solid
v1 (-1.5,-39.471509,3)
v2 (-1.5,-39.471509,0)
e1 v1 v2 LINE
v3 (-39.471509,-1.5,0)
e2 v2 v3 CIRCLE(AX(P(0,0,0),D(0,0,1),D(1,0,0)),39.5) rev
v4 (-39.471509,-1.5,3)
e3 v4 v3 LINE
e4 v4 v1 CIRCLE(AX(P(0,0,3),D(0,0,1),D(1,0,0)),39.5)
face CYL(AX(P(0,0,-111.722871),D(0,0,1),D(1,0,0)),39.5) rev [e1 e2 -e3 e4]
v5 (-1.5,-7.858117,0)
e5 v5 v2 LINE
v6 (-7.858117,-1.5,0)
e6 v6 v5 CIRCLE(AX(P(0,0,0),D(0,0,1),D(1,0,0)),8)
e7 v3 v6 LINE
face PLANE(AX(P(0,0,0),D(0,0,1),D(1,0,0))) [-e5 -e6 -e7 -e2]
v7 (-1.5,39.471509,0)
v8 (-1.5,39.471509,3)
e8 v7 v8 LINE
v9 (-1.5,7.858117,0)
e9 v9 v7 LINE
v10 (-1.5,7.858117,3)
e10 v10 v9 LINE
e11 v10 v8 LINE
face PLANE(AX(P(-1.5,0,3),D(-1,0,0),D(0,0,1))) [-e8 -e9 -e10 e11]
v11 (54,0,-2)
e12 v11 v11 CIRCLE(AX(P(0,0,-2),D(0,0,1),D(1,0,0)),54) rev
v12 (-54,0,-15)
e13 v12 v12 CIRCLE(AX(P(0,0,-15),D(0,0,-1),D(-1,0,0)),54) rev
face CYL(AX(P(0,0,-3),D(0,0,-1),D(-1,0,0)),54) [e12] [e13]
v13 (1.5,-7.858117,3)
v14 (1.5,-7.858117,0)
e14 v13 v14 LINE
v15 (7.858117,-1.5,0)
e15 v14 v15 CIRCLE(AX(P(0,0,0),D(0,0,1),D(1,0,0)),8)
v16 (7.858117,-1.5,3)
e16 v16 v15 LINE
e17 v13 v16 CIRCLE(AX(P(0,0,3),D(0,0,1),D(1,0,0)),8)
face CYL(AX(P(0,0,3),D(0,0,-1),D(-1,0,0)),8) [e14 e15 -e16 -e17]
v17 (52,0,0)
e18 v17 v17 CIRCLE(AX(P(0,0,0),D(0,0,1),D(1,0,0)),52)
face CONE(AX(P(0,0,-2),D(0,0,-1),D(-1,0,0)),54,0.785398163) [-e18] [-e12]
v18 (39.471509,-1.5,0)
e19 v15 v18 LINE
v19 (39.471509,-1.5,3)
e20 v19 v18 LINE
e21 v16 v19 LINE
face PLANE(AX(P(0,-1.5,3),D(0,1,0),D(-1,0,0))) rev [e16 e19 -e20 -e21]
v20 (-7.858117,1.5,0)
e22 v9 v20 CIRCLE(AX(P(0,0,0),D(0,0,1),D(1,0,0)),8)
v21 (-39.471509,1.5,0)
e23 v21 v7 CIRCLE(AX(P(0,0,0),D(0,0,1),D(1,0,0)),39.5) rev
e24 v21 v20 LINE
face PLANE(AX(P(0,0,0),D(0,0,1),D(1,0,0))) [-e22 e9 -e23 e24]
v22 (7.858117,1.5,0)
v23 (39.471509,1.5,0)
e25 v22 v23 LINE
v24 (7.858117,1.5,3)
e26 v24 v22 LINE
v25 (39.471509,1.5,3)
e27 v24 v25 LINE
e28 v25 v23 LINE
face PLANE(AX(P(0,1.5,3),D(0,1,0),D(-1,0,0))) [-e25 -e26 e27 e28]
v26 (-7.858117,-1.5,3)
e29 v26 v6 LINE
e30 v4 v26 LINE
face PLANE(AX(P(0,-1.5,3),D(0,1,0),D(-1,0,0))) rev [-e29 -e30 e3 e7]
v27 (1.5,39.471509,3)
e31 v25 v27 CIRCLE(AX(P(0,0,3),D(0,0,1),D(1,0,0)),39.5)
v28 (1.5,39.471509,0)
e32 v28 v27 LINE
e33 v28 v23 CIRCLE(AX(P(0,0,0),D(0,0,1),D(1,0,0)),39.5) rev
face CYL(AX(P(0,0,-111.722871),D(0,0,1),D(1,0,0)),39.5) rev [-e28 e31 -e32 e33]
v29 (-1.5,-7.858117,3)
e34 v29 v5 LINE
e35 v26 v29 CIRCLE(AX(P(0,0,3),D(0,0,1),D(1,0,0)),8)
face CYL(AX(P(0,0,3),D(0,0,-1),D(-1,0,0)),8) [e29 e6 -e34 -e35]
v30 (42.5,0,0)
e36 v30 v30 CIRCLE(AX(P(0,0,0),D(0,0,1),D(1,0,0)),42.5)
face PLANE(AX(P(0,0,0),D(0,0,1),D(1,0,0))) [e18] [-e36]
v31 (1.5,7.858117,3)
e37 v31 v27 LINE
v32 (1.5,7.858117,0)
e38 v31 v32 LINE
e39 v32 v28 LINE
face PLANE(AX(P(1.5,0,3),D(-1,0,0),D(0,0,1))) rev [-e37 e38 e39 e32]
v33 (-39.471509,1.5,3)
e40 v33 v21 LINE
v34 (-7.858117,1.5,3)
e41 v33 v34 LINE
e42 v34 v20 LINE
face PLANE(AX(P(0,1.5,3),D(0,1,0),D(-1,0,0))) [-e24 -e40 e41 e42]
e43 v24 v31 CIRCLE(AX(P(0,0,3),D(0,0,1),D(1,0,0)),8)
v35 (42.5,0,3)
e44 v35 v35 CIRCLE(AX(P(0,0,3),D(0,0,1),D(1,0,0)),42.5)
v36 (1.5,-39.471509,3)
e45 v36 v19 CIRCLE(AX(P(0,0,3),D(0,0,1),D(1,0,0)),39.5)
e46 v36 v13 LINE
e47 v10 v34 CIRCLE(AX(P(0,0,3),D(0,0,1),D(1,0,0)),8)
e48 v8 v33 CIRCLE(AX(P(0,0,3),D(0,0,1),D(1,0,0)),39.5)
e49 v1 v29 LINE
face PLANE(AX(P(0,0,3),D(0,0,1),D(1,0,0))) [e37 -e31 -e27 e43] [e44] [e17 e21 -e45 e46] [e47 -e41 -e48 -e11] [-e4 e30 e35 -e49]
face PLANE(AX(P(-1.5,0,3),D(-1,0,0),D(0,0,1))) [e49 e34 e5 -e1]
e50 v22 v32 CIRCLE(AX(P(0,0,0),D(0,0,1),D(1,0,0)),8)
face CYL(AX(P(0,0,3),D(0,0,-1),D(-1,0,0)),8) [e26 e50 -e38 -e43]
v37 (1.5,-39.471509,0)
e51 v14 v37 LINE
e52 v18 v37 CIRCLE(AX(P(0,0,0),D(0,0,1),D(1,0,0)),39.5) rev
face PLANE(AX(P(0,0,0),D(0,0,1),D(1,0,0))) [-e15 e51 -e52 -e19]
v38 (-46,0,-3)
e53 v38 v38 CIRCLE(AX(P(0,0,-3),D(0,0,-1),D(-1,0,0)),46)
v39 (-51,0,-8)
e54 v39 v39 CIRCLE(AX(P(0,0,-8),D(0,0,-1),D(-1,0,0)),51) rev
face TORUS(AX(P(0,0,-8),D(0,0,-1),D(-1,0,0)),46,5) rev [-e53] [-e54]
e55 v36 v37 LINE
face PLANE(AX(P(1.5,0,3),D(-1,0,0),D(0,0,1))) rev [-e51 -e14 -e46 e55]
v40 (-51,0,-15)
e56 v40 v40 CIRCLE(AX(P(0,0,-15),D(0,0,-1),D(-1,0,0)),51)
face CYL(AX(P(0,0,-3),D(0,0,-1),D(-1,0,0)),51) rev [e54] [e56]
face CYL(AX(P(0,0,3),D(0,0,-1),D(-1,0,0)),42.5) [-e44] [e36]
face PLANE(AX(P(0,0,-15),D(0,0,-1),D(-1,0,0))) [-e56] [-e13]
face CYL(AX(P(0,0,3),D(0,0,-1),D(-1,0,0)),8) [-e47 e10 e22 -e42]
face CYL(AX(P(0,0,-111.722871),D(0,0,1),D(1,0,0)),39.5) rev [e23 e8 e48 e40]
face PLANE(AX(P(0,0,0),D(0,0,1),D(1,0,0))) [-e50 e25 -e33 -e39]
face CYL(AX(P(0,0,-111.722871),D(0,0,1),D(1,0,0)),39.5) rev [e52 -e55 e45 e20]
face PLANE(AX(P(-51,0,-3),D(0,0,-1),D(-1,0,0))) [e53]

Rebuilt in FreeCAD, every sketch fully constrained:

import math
import FreeCAD as App
import Part
import Sketcher
Q = App.Units.Quantity


def edges_at(feature, points):
    """Names of the edges that pass closest to the given points."""
    edges = feature.Shape.Edges
    near = lambda p: min(range(len(edges)), key=lambda i: edges[i].distToShape(Part.Vertex(*p))[0])
    return sorted({f"Edge{near(p) + 1}" for p in points})

doc = App.newDocument("Part")
body = doc.addObject("PartDesign::Body", "Body")

# Sketch on XZ plane
sketch1 = doc.addObject("Sketcher::SketchObject", "Sketch")
body.addObject(sketch1)
sketch1.AttachmentSupport = (doc.XZ_Plane, [""])
sketch1.MapMode = "FlatFace"
sketch1.addGeometry([
    Part.LineSegment(App.Vector(-54, 0, 0), App.Vector(0, 0, 0)),  # 0
    Part.LineSegment(App.Vector(0, 0, 0), App.Vector(0, -3, 0)),  # 1
    Part.LineSegment(App.Vector(0, -3, 0), App.Vector(-51, -3, 0)),  # 2
    Part.LineSegment(App.Vector(-51, -3, 0), App.Vector(-51, -145, 0)),  # 3
    Part.LineSegment(App.Vector(-51, -145, 0), App.Vector(-54, -145, 0)),  # 4
    Part.LineSegment(App.Vector(-54, -145, 0), App.Vector(-54, 0, 0)),  # 5
], False)
sketch1.addConstraint([
    Sketcher.Constraint("Coincident", 0, 2, 1, 1),
    Sketcher.Constraint("Coincident", 1, 2, 2, 1),
    Sketcher.Constraint("Coincident", 2, 2, 3, 1),
    Sketcher.Constraint("Coincident", 3, 2, 4, 1),
    Sketcher.Constraint("Coincident", 4, 2, 5, 1),
    Sketcher.Constraint("Coincident", 5, 2, 0, 1),
    Sketcher.Constraint("Horizontal", 0),
    Sketcher.Constraint("Vertical", 1),
    Sketcher.Constraint("Horizontal", 2),
    Sketcher.Constraint("Vertical", 3),
    Sketcher.Constraint("Horizontal", 4),
    Sketcher.Constraint("Vertical", 5),
    Sketcher.Constraint("Coincident", 0, 2, -1, 1),
    Sketcher.Constraint("Equal", 4, 1),
    Sketcher.Constraint("DistanceX", 0, 1, 0, 2, Q("54 mm")),
    Sketcher.Constraint("DistanceX", 2, 2, 2, 1, Q("51 mm")),
    Sketcher.Constraint("DistanceY", 3, 2, 3, 1, Q("142 mm")),
])
revolution = doc.addObject("PartDesign::Revolution", "Revolution")
body.addObject(revolution)
revolution.Profile = sketch1
revolution.ReferenceAxis = (sketch1, ["V_Axis"])
revolution.Angle = 360

# Sketch on YZ plane
sketch2 = doc.addObject("Sketcher::SketchObject", "Sketch001")
body.addObject(sketch2)
sketch2.AttachmentSupport = (doc.YZ_Plane, [""])
sketch2.MapMode = "FlatFace"
sketch2.AttachmentOffset = App.Placement(App.Vector(0, 0, 57), App.Rotation())
sketch2.addGeometry([
    Part.LineSegment(App.Vector(-14, -145, 0), App.Vector(14, -145, 0)),  # 0
    Part.LineSegment(App.Vector(14, -145, 0), App.Vector(14, -134, 0)),  # 1
    Part.LineSegment(App.Vector(14, -134, 0), App.Vector(11, -134, 0)),  # 2
    Part.LineSegment(App.Vector(11, -134, 0), App.Vector(11, -138.5, 0)),  # 3
    Part.LineSegment(App.Vector(11, -138.5, 0), App.Vector(-14, -140, 0)),  # 4
    Part.LineSegment(App.Vector(-14, -140, 0), App.Vector(-14, -145, 0)),  # 5
], False)
sketch2.addConstraint([
    Sketcher.Constraint("Coincident", 0, 2, 1, 1),
    Sketcher.Constraint("Coincident", 1, 2, 2, 1),
    Sketcher.Constraint("Coincident", 2, 2, 3, 1),
    Sketcher.Constraint("Coincident", 3, 2, 4, 1),
    Sketcher.Constraint("Coincident", 4, 2, 5, 1),
    Sketcher.Constraint("Coincident", 5, 2, 0, 1),
    Sketcher.Constraint("Horizontal", 0),
    Sketcher.Constraint("Vertical", 1),
    Sketcher.Constraint("Horizontal", 2),
    Sketcher.Constraint("Vertical", 3),
    Sketcher.Constraint("Vertical", 5),
    Sketcher.Constraint("DistanceX", 0, 1, 0, 2, Q("28 mm")),
    Sketcher.Constraint("DistanceX", 2, 2, 2, 1, Q("3 mm")),
    Sketcher.Constraint("DistanceY", 1, 1, 1, 2, Q("11 mm")),
    Sketcher.Constraint("DistanceY", 5, 2, 5, 1, Q("5 mm")),
    Sketcher.Constraint("DistanceY", 3, 2, 3, 1, Q("4.5 mm")),
    Sketcher.Constraint("DistanceX", -1, 1, 0, 2, Q("14 mm")),
    Sketcher.Constraint("DistanceY", 0, 2, -1, 1, Q("145 mm")),
])
pad1 = doc.addObject("PartDesign::Pad", "Pad")
body.addObject(pad1)
pad1.Profile = sketch2
pad1.Length = 10
pad1.Reversed = True
doc.recompute()

fillet = doc.addObject("PartDesign::Fillet", "Fillet")
body.addObject(fillet)
fillet.Base = (pad1, edges_at(pad1, [(54.577, -14, -140)]))
fillet.Radius = 2
doc.recompute()

polarpattern = doc.addObject("PartDesign::PolarPattern", "PolarPattern")
body.addObject(polarpattern)
polarpattern.Originals = [pad1]
polarpattern.Axis = (doc.Z_Axis, [""])
polarpattern.Angle = 360
polarpattern.Occurrences = 3
body.Tip = polarpattern
doc.recompute()

fillet2 = doc.addObject("PartDesign::Fillet", "Fillet001")
body.addObject(fillet2)
fillet2.Base = (polarpattern, edges_at(polarpattern, [(-15.164, 54.265, -140), (-39.413, -40.265, -140)]))
fillet2.Radius = 2

# Sketch on XY plane
sketch3 = doc.addObject("Sketcher::SketchObject", "Sketch002")
body.addObject(sketch3)
sketch3.AttachmentSupport = (doc.XY_Plane, [""])
sketch3.MapMode = "FlatFace"
sketch3.AttachmentOffset = App.Placement(App.Vector(0, 0, -130), App.Rotation())
sketch3.addGeometry(Part.Circle(App.Vector(0, 0, 0), App.Vector(0, 0, 1), 51), False)
sketch3.addConstraint([
    Sketcher.Constraint("Coincident", 0, 3, -1, 1),
    Sketcher.Constraint("Diameter", 0, Q("102 mm")),
])
pocket1 = doc.addObject("PartDesign::Pocket", "Pocket")
body.addObject(pocket1)
pocket1.Profile = sketch3
pocket1.Length = 15

# Sketch on XY plane
sketch4 = doc.addObject("Sketcher::SketchObject", "Sketch003")
body.addObject(sketch4)
sketch4.AttachmentSupport = (doc.XY_Plane, [""])
sketch4.MapMode = "FlatFace"
sketch4.AttachmentOffset = App.Placement(App.Vector(0, 0, -145), App.Rotation())
sketch4.addGeometry([
    Part.Circle(App.Vector(0, 0, 0), App.Vector(0, 0, 1), 63),
    Part.Circle(App.Vector(0, 0, 0), App.Vector(0, 0, 1), 57),
], False)
sketch4.addConstraint([
    Sketcher.Constraint("Coincident", 0, 3, -1, 1),
    Sketcher.Constraint("Coincident", 1, 3, -1, 1),
    Sketcher.Constraint("Diameter", 1, Q("114 mm")),
    Sketcher.Constraint("Diameter", 0, Q("125.23744 mm")),
])
pocket2 = doc.addObject("PartDesign::Pocket", "Pocket001")
body.addObject(pocket2)
pocket2.Profile = sketch4
pocket2.Length = 15
pocket2.Reversed = True
doc.recompute()

chamfer = doc.addObject("PartDesign::Chamfer", "Chamfer")
body.addObject(chamfer)
chamfer.Base = (pocket2, edges_at(pocket2, [(54, 0, 0)]))
chamfer.Size = 2
doc.recompute()

fillet3 = doc.addObject("PartDesign::Fillet", "Fillet002")
body.addObject(fillet3)
fillet3.Base = (chamfer, edges_at(chamfer, [(51, 0, -3)]))
fillet3.Radius = 5

# Sketch on XY plane
sketch5 = doc.addObject("Sketcher::SketchObject", "Sketch004")
body.addObject(sketch5)
sketch5.AttachmentSupport = (doc.XY_Plane, [""])
sketch5.MapMode = "FlatFace"
sketch5.addGeometry(Part.Circle(App.Vector(0, 0, 0), App.Vector(0, 0, 1), 42), False)
sketch5.addConstraint([
    Sketcher.Constraint("Coincident", 0, 3, -1, 1),
    Sketcher.Constraint("Diameter", 0, Q("85 mm")),
])
pad2 = doc.addObject("PartDesign::Pad", "Pad001")
body.addObject(pad2)
pad2.Profile = sketch5
pad2.Length = 3

# Sketch on XY plane
sketch6 = doc.addObject("Sketcher::SketchObject", "Sketch005")
body.addObject(sketch6)
sketch6.AttachmentSupport = (doc.XY_Plane, [""])
sketch6.MapMode = "FlatFace"
sketch6.AttachmentOffset = App.Placement(App.Vector(0, 0, 3), App.Rotation())
sketch6.addGeometry(Part.Circle(App.Vector(0, 0, 0), App.Vector(0, 0, 1), 40), False)
sketch6.addConstraint([
    Sketcher.Constraint("Coincident", 0, 3, -1, 1),
    Sketcher.Constraint("Diameter", 0, Q("79 mm")),
])
pocket3 = doc.addObject("PartDesign::Pocket", "Pocket002")
body.addObject(pocket3)
pocket3.Profile = sketch6
pocket3.Length = 3

# Sketch on XY plane
sketch7 = doc.addObject("Sketcher::SketchObject", "Sketch006")
body.addObject(sketch7)
sketch7.AttachmentSupport = (doc.XY_Plane, [""])
sketch7.MapMode = "FlatFace"
sketch7.AttachmentOffset = App.Placement(App.Vector(0, 0, 3), App.Rotation())
sketch7.addGeometry([
    Part.LineSegment(App.Vector(-7.9, 1.5, 0), App.Vector(-39.5, 1.5, 0)),  # 0
    Part.ArcOfCircle(Part.Circle(App.Vector(0, 0, 0), App.Vector(0, 0, 1), 39.5), math.radians(177.82), math.radians(182.18)),  # 1
    Part.LineSegment(App.Vector(-39.5, -1.5, 0), App.Vector(-7.9, -1.5, 0)),  # 2
    Part.ArcOfCircle(Part.Circle(App.Vector(0, 0, 0), App.Vector(0, 0, 1), 8), math.radians(-169), math.radians(-101)),  # 3
    Part.LineSegment(App.Vector(-1.5, -7.9, 0), App.Vector(-1.5, -39.5, 0)),  # 4
    Part.ArcOfCircle(Part.Circle(App.Vector(0, 0, 0), App.Vector(0, 0, 1), 39.5), math.radians(-92.18), math.radians(-87.82)),  # 5
    Part.LineSegment(App.Vector(1.5, -39.5, 0), App.Vector(1.5, -7.9, 0)),  # 6
    Part.ArcOfCircle(Part.Circle(App.Vector(0, 0, 0), App.Vector(0, 0, 1), 8), math.radians(-79), math.radians(-11)),  # 7
    Part.LineSegment(App.Vector(7.9, -1.5, 0), App.Vector(39.5, -1.5, 0)),  # 8
    Part.ArcOfCircle(Part.Circle(App.Vector(0, 0, 0), App.Vector(0, 0, 1), 39.5), math.radians(-2.18), math.radians(0)),  # 9
    Part.ArcOfCircle(Part.Circle(App.Vector(0, 0, 0), App.Vector(0, 0, 1), 39.5), math.radians(0), math.radians(2.18)),  # 10
    Part.LineSegment(App.Vector(39.5, 1.5, 0), App.Vector(7.9, 1.5, 0)),  # 11
    Part.ArcOfCircle(Part.Circle(App.Vector(0, 0, 0), App.Vector(0, 0, 1), 8), math.radians(11), math.radians(79)),  # 12
    Part.LineSegment(App.Vector(1.5, 7.9, 0), App.Vector(1.5, 39.5, 0)),  # 13
    Part.ArcOfCircle(Part.Circle(App.Vector(0, 0, 0), App.Vector(0, 0, 1), 39.5), math.radians(87.82), math.radians(92.18)),  # 14
    Part.LineSegment(App.Vector(-1.5, 39.5, 0), App.Vector(-1.5, 7.9, 0)),  # 15
    Part.ArcOfCircle(Part.Circle(App.Vector(0, 0, 0), App.Vector(0, 0, 1), 8), math.radians(101), math.radians(169)),  # 16
], False)
sketch7.addConstraint([
    Sketcher.Constraint("Coincident", 0, 2, 1, 1),
    Sketcher.Constraint("Coincident", 1, 2, 2, 1),
    Sketcher.Constraint("Coincident", 2, 2, 3, 1),
    Sketcher.Constraint("Coincident", 3, 2, 4, 1),
    Sketcher.Constraint("Coincident", 4, 2, 5, 1),
    Sketcher.Constraint("Coincident", 5, 2, 6, 1),
    Sketcher.Constraint("Coincident", 6, 2, 7, 1),
    Sketcher.Constraint("Coincident", 7, 2, 8, 1),
    Sketcher.Constraint("Coincident", 8, 2, 9, 1),
    Sketcher.Constraint("Tangent", 9, 2, 10, 1),
    Sketcher.Constraint("Coincident", 10, 2, 11, 1),
    Sketcher.Constraint("Coincident", 11, 2, 12, 1),
    Sketcher.Constraint("Coincident", 12, 2, 13, 1),
    Sketcher.Constraint("Coincident", 13, 2, 14, 1),
    Sketcher.Constraint("Coincident", 14, 2, 15, 1),
    Sketcher.Constraint("Coincident", 15, 2, 16, 1),
    Sketcher.Constraint("Coincident", 16, 2, 0, 1),
    Sketcher.Constraint("Horizontal", 0),
    Sketcher.Constraint("Horizontal", 2),
    Sketcher.Constraint("Vertical", 4),
    Sketcher.Constraint("Vertical", 6),
    Sketcher.Constraint("Horizontal", 8),
    Sketcher.Constraint("Horizontal", 11),
    Sketcher.Constraint("Vertical", 13),
    Sketcher.Constraint("Vertical", 15),
    Sketcher.Constraint("Coincident", 1, 3, -1, 1),
    Sketcher.Constraint("Coincident", 3, 3, -1, 1),
    Sketcher.Constraint("Coincident", 5, 3, -1, 1),
    Sketcher.Constraint("Coincident", 7, 3, -1, 1),
    Sketcher.Constraint("Coincident", 9, 3, -1, 1),
    Sketcher.Constraint("Coincident", 12, 3, -1, 1),
    Sketcher.Constraint("Coincident", 14, 3, -1, 1),
    Sketcher.Constraint("Coincident", 16, 3, -1, 1),
    Sketcher.Constraint("Equal", 1, 5),
    Sketcher.Constraint("Equal", 3, 7),
    Sketcher.Constraint("Equal", 5, 9),
    Sketcher.Constraint("Equal", 9, 10),
    Sketcher.Constraint("Equal", 7, 12),
    Sketcher.Constraint("Equal", 10, 14),
    Sketcher.Constraint("Equal", 12, 16),
    Sketcher.Constraint("PointOnObject", 9, 2, -1),
    Sketcher.Constraint("Horizontal", 4, 2, 5, 2),
    Sketcher.Constraint("Horizontal", 2, 2, 7, 2),
    Sketcher.Constraint("Horizontal", 0, 2, 10, 2),
    Sketcher.Constraint("Horizontal", 13, 2, 14, 2),
    Sketcher.Constraint("Vertical", 0, 2, 1, 2),
    Sketcher.Constraint("Vertical", 6, 2, 12, 2),
    Sketcher.Constraint("Equal", 11, 4),
    Sketcher.Constraint("Radius", 3, Q("8 mm")),
    Sketcher.Constraint("Radius", 1, Q("39.5 mm")),
    Sketcher.Constraint("DistanceY", 1, 2, 0, 2, Q("3 mm")),
])
pad3 = doc.addObject("PartDesign::Pad", "Pad002")
body.addObject(pad3)
pad3.Profile = sketch7
pad3.Length = 3
pad3.Reversed = True

# Sketch on XY plane
sketch8 = doc.addObject("Sketcher::SketchObject", "Sketch007")
body.addObject(sketch8)
sketch8.AttachmentSupport = (doc.XY_Plane, [""])
sketch8.MapMode = "FlatFace"
sketch8.AttachmentOffset = App.Placement(App.Vector(0, 0, -145), App.Rotation())
sketch8.addGeometry(Part.Circle(App.Vector(0, 0, 0), App.Vector(0, 0, 1), 73), False)
sketch8.addConstraint([
    Sketcher.Constraint("Coincident", 0, 3, -1, 1),
    Sketcher.Constraint("Diameter", 0, Q("146.359046 mm")),
])
pocket4 = doc.addObject("PartDesign::Pocket", "Pocket003")
body.addObject(pocket4)
pocket4.Profile = sketch8
pocket4.Length = 130
pocket4.Reversed = True

doc.recompute()
